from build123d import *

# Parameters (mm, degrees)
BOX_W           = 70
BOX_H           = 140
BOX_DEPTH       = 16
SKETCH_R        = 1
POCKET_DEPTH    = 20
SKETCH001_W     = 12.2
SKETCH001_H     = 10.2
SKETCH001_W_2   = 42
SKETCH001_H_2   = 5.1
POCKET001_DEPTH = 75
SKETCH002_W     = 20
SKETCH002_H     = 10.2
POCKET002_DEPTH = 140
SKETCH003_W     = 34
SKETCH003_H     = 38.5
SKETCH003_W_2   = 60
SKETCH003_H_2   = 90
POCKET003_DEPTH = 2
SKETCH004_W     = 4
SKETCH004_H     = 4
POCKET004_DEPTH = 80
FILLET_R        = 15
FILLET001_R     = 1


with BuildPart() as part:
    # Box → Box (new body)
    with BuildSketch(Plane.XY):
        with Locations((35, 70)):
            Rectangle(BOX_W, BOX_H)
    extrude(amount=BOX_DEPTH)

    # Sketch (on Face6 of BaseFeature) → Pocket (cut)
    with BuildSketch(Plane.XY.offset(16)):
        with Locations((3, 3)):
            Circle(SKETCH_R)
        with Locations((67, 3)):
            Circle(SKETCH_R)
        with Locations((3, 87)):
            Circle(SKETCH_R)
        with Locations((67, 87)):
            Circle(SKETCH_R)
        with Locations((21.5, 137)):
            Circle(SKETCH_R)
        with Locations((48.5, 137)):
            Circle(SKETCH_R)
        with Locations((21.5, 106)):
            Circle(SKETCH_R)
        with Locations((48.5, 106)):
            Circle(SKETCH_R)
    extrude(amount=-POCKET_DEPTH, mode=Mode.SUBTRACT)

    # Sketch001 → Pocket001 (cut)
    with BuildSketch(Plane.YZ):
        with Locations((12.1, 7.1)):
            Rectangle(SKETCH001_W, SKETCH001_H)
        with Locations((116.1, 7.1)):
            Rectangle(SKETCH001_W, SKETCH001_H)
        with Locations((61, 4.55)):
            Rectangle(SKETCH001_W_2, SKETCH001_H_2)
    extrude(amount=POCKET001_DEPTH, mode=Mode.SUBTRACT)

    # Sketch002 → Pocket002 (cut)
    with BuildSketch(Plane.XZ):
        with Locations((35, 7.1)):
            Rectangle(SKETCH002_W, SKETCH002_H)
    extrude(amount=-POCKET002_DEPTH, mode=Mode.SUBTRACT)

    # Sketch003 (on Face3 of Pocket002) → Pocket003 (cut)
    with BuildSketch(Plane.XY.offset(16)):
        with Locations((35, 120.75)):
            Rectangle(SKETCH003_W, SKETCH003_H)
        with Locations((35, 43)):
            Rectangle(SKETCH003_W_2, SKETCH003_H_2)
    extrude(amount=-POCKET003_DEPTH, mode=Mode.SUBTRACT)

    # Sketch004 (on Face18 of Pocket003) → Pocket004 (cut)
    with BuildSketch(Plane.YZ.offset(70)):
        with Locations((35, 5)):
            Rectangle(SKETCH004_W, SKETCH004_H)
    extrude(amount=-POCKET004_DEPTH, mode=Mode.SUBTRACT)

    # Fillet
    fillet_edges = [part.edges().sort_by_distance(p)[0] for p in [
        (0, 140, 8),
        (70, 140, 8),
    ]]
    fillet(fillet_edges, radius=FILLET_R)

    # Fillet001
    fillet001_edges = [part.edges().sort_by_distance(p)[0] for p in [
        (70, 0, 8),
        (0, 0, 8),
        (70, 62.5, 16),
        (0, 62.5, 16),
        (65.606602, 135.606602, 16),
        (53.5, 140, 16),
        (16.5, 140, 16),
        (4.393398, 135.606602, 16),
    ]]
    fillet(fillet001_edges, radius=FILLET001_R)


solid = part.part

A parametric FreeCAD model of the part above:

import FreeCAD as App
import Part
import Sketcher

V = App.Vector
Q = App.Units.Quantity


def edges_at(feature, points):
    """Names of the edges that pass closest to the given points."""
    edges = feature.Shape.Edges
    near = lambda p: min(range(len(edges)), key=lambda i: edges[i].distToShape(Part.Vertex(*p))[0])
    return sorted({f"Edge{near(p) + 1}" for p in points})

doc = App.newDocument("Part")
params = doc.addObject("Spreadsheet::Sheet", "Params")
for row, (alias, value) in enumerate([
    ("sketch1_width", "70 mm"),
    ("sketch1_height", "140 mm"),
    ("pad1_length", "16 mm"),
    ("sketch2_diameter", "2 mm"),
    ("pocket1_length", "20 mm"),
    ("sketch3_width", "42 mm"),
    ("sketch3_width2", "12.2 mm"),
    ("sketch3_height", "10.2 mm"),
    ("sketch3_height2", "5.1 mm"),
    ("pocket2_length", "75 mm"),
    ("sketch4_width", "20 mm"),
    ("sketch4_height", "10.2 mm"),
    ("pocket3_length", "140 mm"),
    ("sketch5_width", "34 mm"),
    ("sketch5_width2", "60 mm"),
    ("sketch5_height", "90 mm"),
    ("sketch5_height2", "38.5 mm"),
    ("pocket4_length", "2 mm"),
    ("sketch6_width", "4 mm"),
    ("pocket5_length", "80 mm"),
    ("fillet_radius", "15 mm"),
    ("fillet2_radius", "1 mm"),
], start=1):
    params.set(f"A{row}", alias)
    params.set(f"B{row}", "=" + value)
    params.setAlias(f"B{row}", alias)

body = doc.addObject("PartDesign::Body", "Body")

# Sketch on XY plane
sketch1 = body.newObject("Sketcher::SketchObject", "Sketch")
sketch1.AttachmentSupport = (doc.getObject("XY_Plane"), [""])
sketch1.MapMode = "FlatFace"
sketch1.addGeometry([
    Part.LineSegment(V(0, 140, 0), V(0, 0, 0)),
    Part.LineSegment(V(0, 0, 0), V(70, 0, 0)),
    Part.LineSegment(V(70, 0, 0), V(70, 140, 0)),
    Part.LineSegment(V(70, 140, 0), V(0, 140, 0)),
], False)
sketch1.addConstraint([
    Sketcher.Constraint("Coincident", 0, 2, 1, 1),
    Sketcher.Constraint("Coincident", 1, 2, 2, 1),
    Sketcher.Constraint("Coincident", 2, 2, 3, 1),
    Sketcher.Constraint("Coincident", 3, 2, 0, 1),
    Sketcher.Constraint("Vertical", 0),
    Sketcher.Constraint("Horizontal", 1),
    Sketcher.Constraint("Vertical", 2),
    Sketcher.Constraint("Horizontal", 3),
    Sketcher.Constraint("Coincident", 0, 2, -1, 1),
    Sketcher.Constraint("DistanceX", 1, 1, 1, 2, Q("70 mm")),
    Sketcher.Constraint("DistanceY", 0, 2, 0, 1, Q("140 mm")),
])
sketch1.setExpression("Constraints[9]", "Params.sketch1_width")
sketch1.setExpression("Constraints[10]", "Params.sketch1_height")
pad1 = body.newObject("PartDesign::Pad", "Pad")
pad1.Profile = sketch1
pad1.setExpression("Length", "Params.pad1_length")

# Sketch on XY plane
sketch2 = body.newObject("Sketcher::SketchObject", "Sketch001")
sketch2.AttachmentSupport = (doc.getObject("XY_Plane"), [""])
sketch2.MapMode = "FlatFace"
sketch2.AttachmentOffset = App.Placement(V(0, 0, 16), App.Rotation())
sketch2.addGeometry([
    Part.Circle(V(3, 3, 0), V(0, 0, 1), 1),  # 0
    Part.Circle(V(67, 3, 0), V(0, 0, 1), 1),  # 1
    Part.Circle(V(3, 87, 0), V(0, 0, 1), 1),  # 2
    Part.Circle(V(67, 87, 0), V(0, 0, 1), 1),  # 3
    Part.Circle(V(21.5, 137, 0), V(0, 0, 1), 1),  # 4
    Part.Circle(V(48.5, 137, 0), V(0, 0, 1), 1),  # 5
    Part.Circle(V(21.5, 106, 0), V(0, 0, 1), 1),  # 6
    Part.Circle(V(48.5, 106, 0), V(0, 0, 1), 1),  # 7
], False)
sketch2.addConstraint([
    Sketcher.Constraint("Equal", 0, 1),
    Sketcher.Constraint("Equal", 1, 2),
    Sketcher.Constraint("Equal", 2, 3),
    Sketcher.Constraint("Equal", 3, 4),
    Sketcher.Constraint("Equal", 4, 5),
    Sketcher.Constraint("Equal", 5, 6),
    Sketcher.Constraint("Equal", 6, 7),
    Sketcher.Constraint("Horizontal", 0, 3, 1, 3),
    Sketcher.Constraint("Horizontal", 2, 3, 3, 3),
    Sketcher.Constraint("Horizontal", 4, 3, 5, 3),
    Sketcher.Constraint("Horizontal", 6, 3, 7, 3),
    Sketcher.Constraint("Vertical", 0, 3, 2, 3),
    Sketcher.Constraint("Vertical", 1, 3, 3, 3),
    Sketcher.Constraint("Vertical", 4, 3, 6, 3),
    Sketcher.Constraint("Vertical", 5, 3, 7, 3),
    Sketcher.Constraint("Diameter", 0, Q("2 mm")),
    Sketcher.Constraint("DistanceX", -1, 1, 0, 3, Q("3 mm")),
    Sketcher.Constraint("DistanceY", -1, 1, 0, 3, Q("3 mm")),
    Sketcher.Constraint("DistanceX", -1, 1, 1, 3, Q("67 mm")),
    Sketcher.Constraint("DistanceY", -1, 1, 2, 3, Q("87 mm")),
    Sketcher.Constraint("DistanceY", -1, 1, 4, 3, Q("137 mm")),
    Sketcher.Constraint("DistanceY", -1, 1, 6, 3, Q("106 mm")),
    Sketcher.Constraint("DistanceX", 4, 3, 5, 3, Q("27 mm")),
    Sketcher.Constraint("DistanceX", -1, 1, 4, 3, Q("21.5 mm")),
])
sketch2.setExpression("Constraints[15]", "Params.sketch2_diameter")
pocket1 = body.newObject("PartDesign::Pocket", "Pocket")
pocket1.Profile = sketch2
pocket1.setExpression("Length", "Params.pocket1_length")

# Sketch on YZ plane
sketch3 = body.newObject("Sketcher::SketchObject", "Sketch002")
sketch3.AttachmentSupport = (doc.getObject("YZ_Plane"), [""])
sketch3.MapMode = "FlatFace"
sketch3.addGeometry([
    Part.LineSegment(V(6, 12, 0), V(6, 2, 0)),  # 0
    Part.LineSegment(V(6, 2, 0), V(18, 2, 0)),  # 1
    Part.LineSegment(V(18, 2, 0), V(18, 12, 0)),  # 2
    Part.LineSegment(V(18, 12, 0), V(6, 12, 0)),  # 3
    Part.LineSegment(V(110, 12, 0), V(110, 2, 0)),  # 4
    Part.LineSegment(V(110, 2, 0), V(122, 2, 0)),  # 5
    Part.LineSegment(V(122, 2, 0), V(122, 12, 0)),  # 6
    Part.LineSegment(V(122, 12, 0), V(110, 12, 0)),  # 7
    Part.LineSegment(V(40, 7, 0), V(40, 2, 0)),  # 8
    Part.LineSegment(V(40, 2, 0), V(82, 2, 0)),  # 9
    Part.LineSegment(V(82, 2, 0), V(82, 7, 0)),  # 10
    Part.LineSegment(V(82, 7, 0), V(40, 7, 0)),  # 11
], False)
sketch3.addConstraint([
    Sketcher.Constraint("Coincident", 0, 2, 1, 1),
    Sketcher.Constraint("Coincident", 1, 2, 2, 1),
    Sketcher.Constraint("Coincident", 2, 2, 3, 1),
    Sketcher.Constraint("Coincident", 3, 2, 0, 1),
    Sketcher.Constraint("Coincident", 4, 2, 5, 1),
    Sketcher.Constraint("Coincident", 5, 2, 6, 1),
    Sketcher.Constraint("Coincident", 6, 2, 7, 1),
    Sketcher.Constraint("Coincident", 7, 2, 4, 1),
    Sketcher.Constraint("Coincident", 8, 2, 9, 1),
    Sketcher.Constraint("Coincident", 9, 2, 10, 1),
    Sketcher.Constraint("Coincident", 10, 2, 11, 1),
    Sketcher.Constraint("Coincident", 11, 2, 8, 1),
    Sketcher.Constraint("Vertical", 0),
    Sketcher.Constraint("Horizontal", 1),
    Sketcher.Constraint("Vertical", 2),
    Sketcher.Constraint("Horizontal", 3),
    Sketcher.Constraint("Vertical", 4),
    Sketcher.Constraint("Horizontal", 5),
    Sketcher.Constraint("Vertical", 6),
    Sketcher.Constraint("Horizontal", 7),
    Sketcher.Constraint("Vertical", 8),
    Sketcher.Constraint("Horizontal", 9),
    Sketcher.Constraint("Vertical", 10),
    Sketcher.Constraint("Horizontal", 11),
    Sketcher.Constraint("Horizontal", 1, 2, 4, 2),
    Sketcher.Constraint("Horizontal", 3, 2, 6, 2),
    Sketcher.Constraint("Horizontal", 5, 2, 8, 2),
    Sketcher.Constraint("Equal", 3, 5),
    Sketcher.Constraint("DistanceX", 9, 1, 9, 2, Q("42 mm")),
    Sketcher.Constraint("DistanceX", 1, 1, 1, 2, Q("12.2 mm")),
    Sketcher.Constraint("DistanceY", 0, 2, 0, 1, Q("10.2 mm")),
    Sketcher.Constraint("DistanceY", 8, 2, 8, 1, Q("5.1 mm")),
    Sketcher.Constraint("DistanceX", -1, 1, 0, 2, Q("6 mm")),
    Sketcher.Constraint("DistanceY", -1, 1, 0, 2, Q("2 mm")),
    Sketcher.Constraint("DistanceX", -1, 1, 4, 2, Q("110 mm")),
    Sketcher.Constraint("DistanceX", -1, 1, 8, 2, Q("40 mm")),
])
sketch3.setExpression("Constraints[28]", "Params.sketch3_width")
sketch3.setExpression("Constraints[29]", "Params.sketch3_width2")
sketch3.setExpression("Constraints[30]", "Params.sketch3_height")
sketch3.setExpression("Constraints[31]", "Params.sketch3_height2")
pocket2 = body.newObject("PartDesign::Pocket", "Pocket001")
pocket2.Profile = sketch3
pocket2.setExpression("Length", "Params.pocket2_length")
pocket2.Reversed = True

# Sketch on XZ plane
sketch4 = body.newObject("Sketcher::SketchObject", "Sketch003")
sketch4.AttachmentSupport = (doc.getObject("XZ_Plane"), [""])
sketch4.MapMode = "FlatFace"
sketch4.addGeometry([
    Part.LineSegment(V(25, 12, 0), V(25, 2, 0)),
    Part.LineSegment(V(25, 2, 0), V(45, 2, 0)),
    Part.LineSegment(V(45, 2, 0), V(45, 12, 0)),
    Part.LineSegment(V(45, 12, 0), V(25, 12, 0)),
], False)
sketch4.addConstraint([
    Sketcher.Constraint("Coincident", 0, 2, 1, 1),
    Sketcher.Constraint("Coincident", 1, 2, 2, 1),
    Sketcher.Constraint("Coincident", 2, 2, 3, 1),
    Sketcher.Constraint("Coincident", 3, 2, 0, 1),
    Sketcher.Constraint("Vertical", 0),
    Sketcher.Constraint("Horizontal", 1),
    Sketcher.Constraint("Vertical", 2),
    Sketcher.Constraint("Horizontal", 3),
    Sketcher.Constraint("DistanceX", 1, 1, 1, 2, Q("20 mm")),
    Sketcher.Constraint("DistanceY", 0, 2, 0, 1, Q("10.2 mm")),
    Sketcher.Constraint("DistanceX", -1, 1, 0, 2, Q("25 mm")),
    Sketcher.Constraint("DistanceY", -1, 1, 0, 2, Q("2 mm")),
])
sketch4.setExpression("Constraints[8]", "Params.sketch4_width")
sketch4.setExpression("Constraints[9]", "Params.sketch4_height")
pocket3 = body.newObject("PartDesign::Pocket", "Pocket002")
pocket3.Profile = sketch4
pocket3.setExpression("Length", "Params.pocket3_length")

# Sketch on XY plane
sketch5 = body.newObject("Sketcher::SketchObject", "Sketch004")
sketch5.AttachmentSupport = (doc.getObject("XY_Plane"), [""])
sketch5.MapMode = "FlatFace"
sketch5.AttachmentOffset = App.Placement(V(0, 0, 16), App.Rotation())
sketch5.addGeometry([
    Part.LineSegment(V(18, 140, 0), V(18, 102, 0)),  # 0
    Part.LineSegment(V(18, 102, 0), V(52, 102, 0)),  # 1
    Part.LineSegment(V(52, 102, 0), V(52, 140, 0)),  # 2
    Part.LineSegment(V(52, 140, 0), V(18, 140, 0)),  # 3
    Part.LineSegment(V(5, 88, 0), V(5, -2, 0)),  # 4
    Part.LineSegment(V(5, -2, 0), V(65, -2, 0)),  # 5
    Part.LineSegment(V(65, -2, 0), V(65, 88, 0)),  # 6
    Part.LineSegment(V(65, 88, 0), V(5, 88, 0)),  # 7
], False)
sketch5.addConstraint([
    Sketcher.Constraint("Coincident", 0, 2, 1, 1),
    Sketcher.Constraint("Coincident", 1, 2, 2, 1),
    Sketcher.Constraint("Coincident", 2, 2, 3, 1),
    Sketcher.Constraint("Coincident", 3, 2, 0, 1),
    Sketcher.Constraint("Coincident", 4, 2, 5, 1),
    Sketcher.Constraint("Coincident", 5, 2, 6, 1),
    Sketcher.Constraint("Coincident", 6, 2, 7, 1),
    Sketcher.Constraint("Coincident", 7, 2, 4, 1),
    Sketcher.Constraint("Vertical", 0),
    Sketcher.Constraint("Horizontal", 1),
    Sketcher.Constraint("Vertical", 2),
    Sketcher.Constraint("Horizontal", 3),
    Sketcher.Constraint("Vertical", 4),
    Sketcher.Constraint("Horizontal", 5),
    Sketcher.Constraint("Vertical", 6),
    Sketcher.Constraint("Horizontal", 7),
    Sketcher.Constraint("DistanceX", 1, 1, 1, 2, Q("34 mm")),
    Sketcher.Constraint("DistanceX", 5, 1, 5, 2, Q("60 mm")),
    Sketcher.Constraint("DistanceY", 4, 2, 4, 1, Q("90 mm")),
    Sketcher.Constraint("DistanceY", 0, 2, 0, 1, Q("38.5 mm")),
    Sketcher.Constraint("DistanceX", -1, 1, 0, 2, Q("18 mm")),
    Sketcher.Constraint("DistanceY", -1, 1, 2, 2, Q("140 mm")),
    Sketcher.Constraint("DistanceX", -1, 1, 4, 2, Q("5 mm")),
    Sketcher.Constraint("DistanceY", 4, 2, -1, 1, Q("2 mm")),
])
sketch5.setExpression("Constraints[16]", "Params.sketch5_width")
sketch5.setExpression("Constraints[17]", "Params.sketch5_width2")
sketch5.setExpression("Constraints[18]", "Params.sketch5_height")
sketch5.setExpression("Constraints[19]", "Params.sketch5_height2")
pocket4 = body.newObject("PartDesign::Pocket", "Pocket003")
pocket4.Profile = sketch5
pocket4.setExpression("Length", "Params.pocket4_length")

# Sketch on YZ plane
sketch6 = body.newObject("Sketcher::SketchObject", "Sketch005")
sketch6.AttachmentSupport = (doc.getObject("YZ_Plane"), [""])
sketch6.MapMode = "FlatFace"
sketch6.AttachmentOffset = App.Placement(V(0, 0, 70), App.Rotation())
sketch6.addGeometry([
    Part.LineSegment(V(33, 7, 0), V(33, 3, 0)),
    Part.LineSegment(V(33, 3, 0), V(37, 3, 0)),
    Part.LineSegment(V(37, 3, 0), V(37, 7, 0)),
    Part.LineSegment(V(37, 7, 0), V(33, 7, 0)),
], False)
sketch6.addConstraint([
    Sketcher.Constraint("Coincident", 0, 2, 1, 1),
    Sketcher.Constraint("Coincident", 1, 2, 2, 1),
    Sketcher.Constraint("Coincident", 2, 2, 3, 1),
    Sketcher.Constraint("Coincident", 3, 2, 0, 1),
    Sketcher.Constraint("Vertical", 0),
    Sketcher.Constraint("Horizontal", 1),
    Sketcher.Constraint("Vertical", 2),
    Sketcher.Constraint("Horizontal", 3),
    Sketcher.Constraint("Equal", 3, 0),
    Sketcher.Constraint("DistanceX", 1, 1, 1, 2, Q("4 mm")),
    Sketcher.Constraint("DistanceX", -1, 1, 0, 2, Q("33 mm")),
    Sketcher.Constraint("DistanceY", -1, 1, 0, 2, Q("3 mm")),
])
sketch6.setExpression("Constraints[9]", "Params.sketch6_width")
pocket5 = body.newObject("PartDesign::Pocket", "Pocket004")
pocket5.Profile = sketch6
pocket5.setExpression("Length", "Params.pocket5_length")
doc.recompute()

fillet = body.newObject("PartDesign::Fillet", "Fillet")
fillet.Base = (pocket5, edges_at(pocket5, [(0, 140, 8), (70, 140, 8)]))
fillet.setExpression("Radius", "Params.fillet_radius")
doc.recompute()

fillet2 = body.newObject("PartDesign::Fillet", "Fillet001")
fillet2.Base = (fillet, edges_at(fillet, [
    (70, 0, 8),
    (0, 0, 8),
    (70, 62.5, 16),
    (0, 62.5, 16),
    (65.607, 135.607, 16),
    (53.5, 140, 16),
    (16.5, 140, 16),
    (4.393, 135.607, 16),
]))
fillet2.setExpression("Radius", "Params.fillet2_radius")

doc.recompute()
